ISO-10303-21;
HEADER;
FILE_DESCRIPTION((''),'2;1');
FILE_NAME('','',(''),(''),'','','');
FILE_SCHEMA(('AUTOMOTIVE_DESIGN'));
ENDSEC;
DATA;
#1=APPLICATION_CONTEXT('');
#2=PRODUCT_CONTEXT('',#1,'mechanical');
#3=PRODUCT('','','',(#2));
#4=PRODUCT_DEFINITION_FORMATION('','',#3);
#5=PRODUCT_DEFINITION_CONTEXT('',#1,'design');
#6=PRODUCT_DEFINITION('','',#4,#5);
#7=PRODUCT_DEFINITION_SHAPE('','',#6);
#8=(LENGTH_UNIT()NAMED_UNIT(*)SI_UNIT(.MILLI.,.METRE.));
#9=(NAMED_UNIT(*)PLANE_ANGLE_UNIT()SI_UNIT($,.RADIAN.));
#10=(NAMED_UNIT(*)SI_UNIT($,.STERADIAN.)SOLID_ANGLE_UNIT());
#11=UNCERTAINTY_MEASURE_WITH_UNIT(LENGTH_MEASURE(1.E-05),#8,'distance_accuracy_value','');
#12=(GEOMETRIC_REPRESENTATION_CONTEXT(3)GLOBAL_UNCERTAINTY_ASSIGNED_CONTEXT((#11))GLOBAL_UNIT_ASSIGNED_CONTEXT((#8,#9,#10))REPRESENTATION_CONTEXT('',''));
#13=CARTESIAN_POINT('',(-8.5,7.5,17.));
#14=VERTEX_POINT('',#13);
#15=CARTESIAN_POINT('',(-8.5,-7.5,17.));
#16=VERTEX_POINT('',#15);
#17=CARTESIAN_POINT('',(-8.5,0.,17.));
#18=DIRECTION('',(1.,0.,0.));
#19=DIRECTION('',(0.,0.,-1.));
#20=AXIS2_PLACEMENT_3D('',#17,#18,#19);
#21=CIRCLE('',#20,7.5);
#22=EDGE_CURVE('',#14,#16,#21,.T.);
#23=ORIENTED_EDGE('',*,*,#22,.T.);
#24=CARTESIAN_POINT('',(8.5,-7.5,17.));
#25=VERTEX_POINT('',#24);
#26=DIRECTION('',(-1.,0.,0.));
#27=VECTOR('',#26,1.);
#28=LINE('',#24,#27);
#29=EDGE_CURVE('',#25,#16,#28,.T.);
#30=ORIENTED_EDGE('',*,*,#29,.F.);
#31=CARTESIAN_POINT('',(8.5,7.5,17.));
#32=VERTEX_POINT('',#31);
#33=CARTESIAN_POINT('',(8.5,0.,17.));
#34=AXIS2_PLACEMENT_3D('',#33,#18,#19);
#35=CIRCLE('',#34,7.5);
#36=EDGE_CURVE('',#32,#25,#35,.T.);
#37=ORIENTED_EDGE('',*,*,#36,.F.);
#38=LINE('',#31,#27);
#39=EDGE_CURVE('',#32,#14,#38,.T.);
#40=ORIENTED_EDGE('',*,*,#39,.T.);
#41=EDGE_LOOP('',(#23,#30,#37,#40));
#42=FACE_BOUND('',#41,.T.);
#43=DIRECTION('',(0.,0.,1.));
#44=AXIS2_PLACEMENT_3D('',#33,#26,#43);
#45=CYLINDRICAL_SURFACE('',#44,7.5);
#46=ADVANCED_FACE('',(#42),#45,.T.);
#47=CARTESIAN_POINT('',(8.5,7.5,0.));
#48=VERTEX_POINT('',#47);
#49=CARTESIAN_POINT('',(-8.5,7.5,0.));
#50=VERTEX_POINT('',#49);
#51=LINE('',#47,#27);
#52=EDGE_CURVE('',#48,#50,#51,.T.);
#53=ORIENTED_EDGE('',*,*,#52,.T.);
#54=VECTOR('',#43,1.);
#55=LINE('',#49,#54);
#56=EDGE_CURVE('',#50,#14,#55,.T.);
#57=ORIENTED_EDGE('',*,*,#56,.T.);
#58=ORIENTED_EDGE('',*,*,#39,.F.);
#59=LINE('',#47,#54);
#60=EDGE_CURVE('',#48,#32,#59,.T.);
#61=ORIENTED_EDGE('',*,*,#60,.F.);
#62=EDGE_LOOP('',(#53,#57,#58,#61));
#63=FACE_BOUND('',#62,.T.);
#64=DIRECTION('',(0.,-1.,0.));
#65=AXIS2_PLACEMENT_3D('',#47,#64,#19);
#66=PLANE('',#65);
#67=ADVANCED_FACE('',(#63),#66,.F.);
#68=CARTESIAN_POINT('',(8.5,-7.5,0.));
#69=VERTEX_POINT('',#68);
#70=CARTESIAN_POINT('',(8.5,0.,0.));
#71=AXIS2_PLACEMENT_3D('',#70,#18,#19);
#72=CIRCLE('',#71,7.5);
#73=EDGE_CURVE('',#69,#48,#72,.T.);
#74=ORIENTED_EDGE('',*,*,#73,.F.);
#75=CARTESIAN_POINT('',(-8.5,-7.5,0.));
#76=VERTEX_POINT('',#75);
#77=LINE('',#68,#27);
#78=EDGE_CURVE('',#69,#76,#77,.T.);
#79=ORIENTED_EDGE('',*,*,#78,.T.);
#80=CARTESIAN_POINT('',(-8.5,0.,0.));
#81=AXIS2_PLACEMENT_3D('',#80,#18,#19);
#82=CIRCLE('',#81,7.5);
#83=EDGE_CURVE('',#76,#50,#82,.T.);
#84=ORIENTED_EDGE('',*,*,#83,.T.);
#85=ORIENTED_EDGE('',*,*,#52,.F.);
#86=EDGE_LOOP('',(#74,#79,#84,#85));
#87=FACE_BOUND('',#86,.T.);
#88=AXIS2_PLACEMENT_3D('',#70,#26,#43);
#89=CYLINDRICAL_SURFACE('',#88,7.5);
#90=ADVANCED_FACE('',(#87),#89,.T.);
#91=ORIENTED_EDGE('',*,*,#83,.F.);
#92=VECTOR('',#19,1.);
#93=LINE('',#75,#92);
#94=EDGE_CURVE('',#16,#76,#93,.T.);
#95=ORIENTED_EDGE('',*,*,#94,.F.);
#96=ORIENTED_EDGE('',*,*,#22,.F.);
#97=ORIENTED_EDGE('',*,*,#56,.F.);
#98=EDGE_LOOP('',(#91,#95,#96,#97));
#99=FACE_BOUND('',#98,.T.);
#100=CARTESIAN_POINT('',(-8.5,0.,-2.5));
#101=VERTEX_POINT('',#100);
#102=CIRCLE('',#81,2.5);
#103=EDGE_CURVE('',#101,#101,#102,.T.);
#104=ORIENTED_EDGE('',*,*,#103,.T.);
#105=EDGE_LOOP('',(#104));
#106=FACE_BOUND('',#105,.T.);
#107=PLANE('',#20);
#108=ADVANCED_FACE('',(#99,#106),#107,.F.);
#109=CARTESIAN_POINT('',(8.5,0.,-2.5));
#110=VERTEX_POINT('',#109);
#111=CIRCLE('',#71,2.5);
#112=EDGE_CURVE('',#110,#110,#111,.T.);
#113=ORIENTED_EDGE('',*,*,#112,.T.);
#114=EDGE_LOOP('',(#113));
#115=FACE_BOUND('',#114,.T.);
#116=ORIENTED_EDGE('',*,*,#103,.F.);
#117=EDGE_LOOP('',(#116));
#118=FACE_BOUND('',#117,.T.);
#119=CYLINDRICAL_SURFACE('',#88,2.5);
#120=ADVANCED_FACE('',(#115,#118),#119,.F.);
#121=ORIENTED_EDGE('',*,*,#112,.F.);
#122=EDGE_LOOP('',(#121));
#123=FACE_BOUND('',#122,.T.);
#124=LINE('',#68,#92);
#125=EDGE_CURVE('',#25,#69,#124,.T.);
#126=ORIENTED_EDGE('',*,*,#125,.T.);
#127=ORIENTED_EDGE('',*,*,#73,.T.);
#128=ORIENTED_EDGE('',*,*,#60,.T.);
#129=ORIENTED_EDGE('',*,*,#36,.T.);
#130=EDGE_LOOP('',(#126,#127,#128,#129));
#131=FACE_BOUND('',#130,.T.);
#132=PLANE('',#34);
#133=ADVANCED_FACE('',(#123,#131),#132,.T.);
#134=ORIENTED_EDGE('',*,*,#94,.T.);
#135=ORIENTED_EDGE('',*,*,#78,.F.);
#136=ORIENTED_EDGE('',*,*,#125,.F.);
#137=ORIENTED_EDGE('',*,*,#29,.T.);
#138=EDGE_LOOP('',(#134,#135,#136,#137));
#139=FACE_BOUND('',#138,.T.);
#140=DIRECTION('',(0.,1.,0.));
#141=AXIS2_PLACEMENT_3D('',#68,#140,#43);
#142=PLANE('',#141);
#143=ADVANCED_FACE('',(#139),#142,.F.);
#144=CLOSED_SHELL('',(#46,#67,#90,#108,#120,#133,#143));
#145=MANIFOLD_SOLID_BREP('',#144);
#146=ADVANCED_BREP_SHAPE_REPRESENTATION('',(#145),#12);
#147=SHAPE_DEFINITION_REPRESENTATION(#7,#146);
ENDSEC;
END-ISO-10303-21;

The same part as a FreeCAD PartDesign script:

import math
import FreeCAD as App
import Part
import Sketcher
from FreeCAD import Vector
Q = App.Units.Quantity

doc = App.newDocument("Part")
body = doc.addObject("PartDesign::Body", "Body")

# Sketch on YZ plane
sketch1 = body.newObject("Sketcher::SketchObject", "Sketch")
sketch1.AttachmentSupport = (doc.getObject("YZ_Plane"), [""])
sketch1.MapMode = "FlatFace"
sketch1.addGeometry(Part.LineSegment(Vector(7.5, 0, 0), Vector(7.5, 17, 0)), False)
sketch1.addGeometry(Part.ArcOfCircle(Part.Circle(Vector(0, 17, 0), Vector(0, 0, 1), 7.5), math.radians(0), math.radians(180)), False)
sketch1.addGeometry(Part.LineSegment(Vector(-7.5, 17, 0), Vector(-7.5, 0, 0)), False)
sketch1.addGeometry(Part.ArcOfCircle(Part.Circle(Vector(0, 0, 0), Vector(0, 0, 1), 7.5), math.radians(180), math.radians(360)), False)
sketch1.addGeometry(Part.Circle(Vector(0, 0, 0), Vector(0, 0, 1), 2.5), False)
sketch1.addConstraint(Sketcher.Constraint("Tangent", 0, 2, 1, 1))
sketch1.addConstraint(Sketcher.Constraint("Tangent", 1, 2, 2, 1))
sketch1.addConstraint(Sketcher.Constraint("Tangent", 2, 2, 3, 1))
sketch1.addConstraint(Sketcher.Constraint("Tangent", 3, 2, 0, 1))
sketch1.addConstraint(Sketcher.Constraint("Vertical", 0))
sketch1.addConstraint(Sketcher.Constraint("Vertical", 2))
sketch1.addConstraint(Sketcher.Constraint("Coincident", 3, 3, -1, 1))
sketch1.addConstraint(Sketcher.Constraint("Coincident", 4, 3, -1, 1))
sketch1.addConstraint(Sketcher.Constraint("Diameter", 4, Q("5 mm")))
sketch1.addConstraint(Sketcher.Constraint("Radius", 1, Q("7.5 mm")))
sketch1.addConstraint(Sketcher.Constraint("DistanceY", 0, 1, 0, 2, Q("17 mm")))
pad1 = body.newObject("PartDesign::Pad", "Pad")
pad1.Profile = sketch1
pad1.Length = 17
pad1.Midplane = True

doc.recompute()
